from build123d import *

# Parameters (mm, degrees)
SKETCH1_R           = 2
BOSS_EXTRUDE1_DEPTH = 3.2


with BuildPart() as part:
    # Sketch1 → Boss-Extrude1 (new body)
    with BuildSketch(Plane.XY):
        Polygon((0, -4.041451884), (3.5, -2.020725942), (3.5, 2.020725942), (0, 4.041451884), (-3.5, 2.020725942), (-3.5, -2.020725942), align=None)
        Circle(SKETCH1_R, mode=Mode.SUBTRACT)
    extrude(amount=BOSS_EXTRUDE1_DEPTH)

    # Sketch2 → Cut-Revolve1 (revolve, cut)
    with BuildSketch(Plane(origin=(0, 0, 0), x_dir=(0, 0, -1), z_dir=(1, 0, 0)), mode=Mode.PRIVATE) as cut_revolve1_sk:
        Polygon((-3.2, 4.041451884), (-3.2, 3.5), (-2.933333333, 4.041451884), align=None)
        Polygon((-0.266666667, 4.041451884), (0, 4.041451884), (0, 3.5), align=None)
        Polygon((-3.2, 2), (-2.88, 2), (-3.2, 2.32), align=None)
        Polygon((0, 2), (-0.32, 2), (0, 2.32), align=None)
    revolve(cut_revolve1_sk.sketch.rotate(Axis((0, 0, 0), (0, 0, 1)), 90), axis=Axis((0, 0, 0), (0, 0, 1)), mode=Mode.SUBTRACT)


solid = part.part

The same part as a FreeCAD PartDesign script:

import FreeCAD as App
import Part
import Sketcher
Q = App.Units.Quantity

doc = App.newDocument("Part")
body = doc.addObject("PartDesign::Body", "Body")

# Sketch on XY plane
sketch1 = body.newObject("Sketcher::SketchObject", "Sketch")
sketch1.AttachmentSupport = (doc.getObject("XY_Plane"), [""])
sketch1.MapMode = "FlatFace"
sketch1.addGeometry(Part.LineSegment(App.Vector(0, -4, 0), App.Vector(3.5, -2, 0)), False)
sketch1.addGeometry(Part.LineSegment(App.Vector(3.5, -2, 0), App.Vector(3.5, 2, 0)), False)
sketch1.addGeometry(Part.LineSegment(App.Vector(3.5, 2, 0), App.Vector(0, 4, 0)), False)
sketch1.addGeometry(Part.LineSegment(App.Vector(0, 4, 0), App.Vector(-3.5, 2, 0)), False)
sketch1.addGeometry(Part.LineSegment(App.Vector(-3.5, 2, 0), App.Vector(-3.5, -2, 0)), False)
sketch1.addGeometry(Part.LineSegment(App.Vector(-3.5, -2, 0), App.Vector(0, -4, 0)), False)
sketch1.addGeometry(Part.Circle(App.Vector(0, 0, 0), App.Vector(0, 0, 1), 2), False)
sketch1.addConstraint(Sketcher.Constraint("Coincident", 0, 2, 1, 1))
sketch1.addConstraint(Sketcher.Constraint("Coincident", 1, 2, 2, 1))
sketch1.addConstraint(Sketcher.Constraint("Coincident", 2, 2, 3, 1))
sketch1.addConstraint(Sketcher.Constraint("Coincident", 3, 2, 4, 1))
sketch1.addConstraint(Sketcher.Constraint("Coincident", 4, 2, 5, 1))
sketch1.addConstraint(Sketcher.Constraint("Coincident", 5, 2, 0, 1))
sketch1.addConstraint(Sketcher.Constraint("Vertical", 1))
sketch1.addConstraint(Sketcher.Constraint("Vertical", 4))
sketch1.addConstraint(Sketcher.Constraint("Coincident", 6, 3, -1, 1))
sketch1.addConstraint(Sketcher.Constraint("Symmetric", 0, 2, 3, 2, -1, 1))
sketch1.addConstraint(Sketcher.Constraint("Symmetric", 2, 2, 5, 2, -1, 1))
sketch1.addConstraint(Sketcher.Constraint("PointOnObject", 2, 2, -2))
sketch1.addConstraint(Sketcher.Constraint("Parallel", 2, 5))
sketch1.addConstraint(Sketcher.Constraint("Horizontal", 1, 2, 3, 2))
sketch1.addConstraint(Sketcher.Constraint("Diameter", 6, 4.0))
sketch1.addConstraint(Sketcher.Constraint("Angle", 0, Q("30 deg")))
sketch1.addConstraint(Sketcher.Constraint("DistanceX", 3, 2, 1, 2, 7.0))
sketch1.addConstraint(Sketcher.Constraint("DistanceY", 1, 1, 1, 2, 4.041452))
pad1 = body.newObject("PartDesign::Pad", "Pad")
pad1.Profile = sketch1
pad1.Length = 3.2

# Sketch on YZ plane
sketch2 = body.newObject("Sketcher::SketchObject", "Sketch001")
sketch2.AttachmentSupport = (doc.getObject("YZ_Plane"), [""])
sketch2.MapMode = "FlatFace"
sketch2.addGeometry(Part.LineSegment(App.Vector(4.04, 3.2, 0), App.Vector(3.5, 3.2, 0)), False)
sketch2.addGeometry(Part.LineSegment(App.Vector(3.5, 3.2, 0), App.Vector(4.04, 2.93, 0)), False)
sketch2.addGeometry(Part.LineSegment(App.Vector(4.04, 2.93, 0), App.Vector(4.04, 3.2, 0)), False)
sketch2.addGeometry(Part.LineSegment(App.Vector(4.04, 0, 0), App.Vector(4.04, 0.27, 0)), False)
sketch2.addGeometry(Part.LineSegment(App.Vector(4.04, 0.27, 0), App.Vector(3.5, 0, 0)), False)
sketch2.addGeometry(Part.LineSegment(App.Vector(3.5, 0, 0), App.Vector(4.04, 0, 0)), False)
sketch2.addGeometry(Part.LineSegment(App.Vector(2, 3.2, 0), App.Vector(2, 2.88, 0)), False)
sketch2.addGeometry(Part.LineSegment(App.Vector(2, 2.88, 0), App.Vector(2.32, 3.2, 0)), False)
sketch2.addGeometry(Part.LineSegment(App.Vector(2.32, 3.2, 0), App.Vector(2, 3.2, 0)), False)
sketch2.addGeometry(Part.LineSegment(App.Vector(2, 0.32, 0), App.Vector(2, 0, 0)), False)
sketch2.addGeometry(Part.LineSegment(App.Vector(2, 0, 0), App.Vector(2.32, 0, 0)), False)
sketch2.addGeometry(Part.LineSegment(App.Vector(2.32, 0, 0), App.Vector(2, 0.32, 0)), False)
sketch2.addConstraint(Sketcher.Constraint("Coincident", 0, 2, 1, 1))
sketch2.addConstraint(Sketcher.Constraint("Coincident", 1, 2, 2, 1))
sketch2.addConstraint(Sketcher.Constraint("Coincident", 2, 2, 0, 1))
sketch2.addConstraint(Sketcher.Constraint("Coincident", 3, 2, 4, 1))
sketch2.addConstraint(Sketcher.Constraint("Coincident", 4, 2, 5, 1))
sketch2.addConstraint(Sketcher.Constraint("Coincident", 5, 2, 3, 1))
sketch2.addConstraint(Sketcher.Constraint("Coincident", 6, 2, 7, 1))
sketch2.addConstraint(Sketcher.Constraint("Coincident", 7, 2, 8, 1))
sketch2.addConstraint(Sketcher.Constraint("Coincident", 8, 2, 6, 1))
sketch2.addConstraint(Sketcher.Constraint("Coincident", 9, 2, 10, 1))
sketch2.addConstraint(Sketcher.Constraint("Coincident", 10, 2, 11, 1))
sketch2.addConstraint(Sketcher.Constraint("Coincident", 11, 2, 9, 1))
sketch2.addConstraint(Sketcher.Constraint("Horizontal", 0))
sketch2.addConstraint(Sketcher.Constraint("Vertical", 2))
sketch2.addConstraint(Sketcher.Constraint("Vertical", 3))
sketch2.addConstraint(Sketcher.Constraint("Horizontal", 5))
sketch2.addConstraint(Sketcher.Constraint("Vertical", 6))
sketch2.addConstraint(Sketcher.Constraint("Horizontal", 8))
sketch2.addConstraint(Sketcher.Constraint("Vertical", 9))
sketch2.addConstraint(Sketcher.Constraint("Horizontal", 10))
sketch2.addConstraint(Sketcher.Constraint("PointOnObject", 4, 2, -1))
sketch2.addConstraint(Sketcher.Constraint("PointOnObject", 9, 2, -1))
sketch2.addConstraint(Sketcher.Constraint("Perpendicular", 7, 11))
sketch2.addConstraint(Sketcher.Constraint("Horizontal", 2, 2, 7, 2))
sketch2.addConstraint(Sketcher.Constraint("Vertical", 2, 2, 3, 2))
sketch2.addConstraint(Sketcher.Constraint("Vertical", 0, 2, 4, 2))
sketch2.addConstraint(Sketcher.Constraint("Vertical", 8, 2, 9, 2))
sketch2.addConstraint(Sketcher.Constraint("Vertical", 7, 2, 10, 2))
sketch2.addConstraint(Sketcher.Constraint("Equal", 2, 3))
sketch2.addConstraint(Sketcher.Constraint("Equal", 10, 6))
sketch2.addConstraint(Sketcher.Constraint("DistanceX", -1, 1, 6, 2, 2.0))
sketch2.addConstraint(Sketcher.Constraint("DistanceX", 8, 2, 8, 1, 0.32))
sketch2.addConstraint(Sketcher.Constraint("DistanceX", -1, 1, 0, 2, 3.5))
sketch2.addConstraint(Sketcher.Constraint("DistanceY", -1, 1, 0, 2, 3.2))
sketch2.addConstraint(Sketcher.Constraint("DistanceX", 0, 2, 0, 1, 0.541452))
sketch2.addConstraint(Sketcher.Constraint("DistanceY", 2, 1, 2, 2, 0.266667))
groove = body.newObject("PartDesign::Groove", "Groove")
groove.Profile = sketch2
groove.ReferenceAxis = (sketch2, ["V_Axis"])
groove.Angle = 360

doc.recompute()
